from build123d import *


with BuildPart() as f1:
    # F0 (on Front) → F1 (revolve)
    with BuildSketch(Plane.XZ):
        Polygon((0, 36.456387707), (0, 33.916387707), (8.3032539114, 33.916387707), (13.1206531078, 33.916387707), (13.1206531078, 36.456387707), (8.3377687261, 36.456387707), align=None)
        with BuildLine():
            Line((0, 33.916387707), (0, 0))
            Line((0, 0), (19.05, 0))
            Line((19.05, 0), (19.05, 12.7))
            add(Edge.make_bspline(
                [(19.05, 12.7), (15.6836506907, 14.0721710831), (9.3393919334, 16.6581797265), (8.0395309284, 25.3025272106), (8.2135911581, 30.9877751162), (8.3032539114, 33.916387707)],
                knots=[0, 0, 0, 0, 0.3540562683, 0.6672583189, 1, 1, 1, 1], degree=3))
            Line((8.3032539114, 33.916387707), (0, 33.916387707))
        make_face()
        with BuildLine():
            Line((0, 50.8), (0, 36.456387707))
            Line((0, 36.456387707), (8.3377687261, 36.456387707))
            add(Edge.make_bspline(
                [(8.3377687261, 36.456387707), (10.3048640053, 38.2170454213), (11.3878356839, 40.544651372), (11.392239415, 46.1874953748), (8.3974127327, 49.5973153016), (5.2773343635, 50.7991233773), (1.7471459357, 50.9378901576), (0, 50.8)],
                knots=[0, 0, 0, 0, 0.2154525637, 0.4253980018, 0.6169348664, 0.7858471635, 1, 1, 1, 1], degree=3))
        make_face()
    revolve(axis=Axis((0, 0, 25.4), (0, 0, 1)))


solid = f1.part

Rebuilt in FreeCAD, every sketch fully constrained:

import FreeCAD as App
import Part
import Sketcher

doc = App.newDocument("Part")
body = doc.addObject("PartDesign::Body", "Body")

# Sketch on XZ plane
sketch1 = body.newObject("Sketcher::SketchObject", "Sketch")
sketch1.AttachmentSupport = (doc.getObject("XZ_Plane"), [""])
sketch1.MapMode = "FlatFace"
sketch1.addGeometry([
    Part.LineSegment(App.Vector(0, 0, 0), App.Vector(19.05, 0, 0)),  # 0
    Part.LineSegment(App.Vector(19.05, 0, 0), App.Vector(19.05, 12.7, 0)),  # 1
    Part.BSplineCurve([App.Vector(19.05, 12.7, 0), App.Vector(15.683651, 14.072171, 0), App.Vector(9.339392, 16.65818, 0), App.Vector(8.039531, 25.302527, 0), App.Vector(8.213591, 30.987775, 0), App.Vector(8.303254, 33.916388, 0)], [4, 1, 1, 4], [0, 0.354056268, 0.667258319, 1], False, 3, [1, 1, 1, 1, 1, 1], False),  # 2
    Part.LineSegment(App.Vector(8.303254, 33.916388, 0), App.Vector(13.120653, 33.916388, 0)),  # 3
    Part.LineSegment(App.Vector(13.120653, 33.916388, 0), App.Vector(13.120653, 36.456388, 0)),  # 4
    Part.LineSegment(App.Vector(13.120653, 36.456388, 0), App.Vector(8.337769, 36.456388, 0)),  # 5
    Part.BSplineCurve([App.Vector(8.337769, 36.456388, 0), App.Vector(10.304864, 38.217045, 0), App.Vector(11.387836, 40.544651, 0), App.Vector(11.392239, 46.187495, 0), App.Vector(8.397413, 49.597315, 0), App.Vector(5.277334, 50.799123, 0), App.Vector(1.747146, 50.93789, 0), App.Vector(0, 50.8, 0)], [4, 1, 1, 1, 1, 4], [0, 0.215452564, 0.425398002, 0.616934866, 0.785847163, 1], False, 3, [1, 1, 1, 1, 1, 1, 1, 1], False),  # 6
    Part.LineSegment(App.Vector(0, 50.8, 0), App.Vector(0, 0, 0)),  # 7
], False)
sketch1.addConstraint([
    Sketcher.Constraint("Block", 2),
    Sketcher.Constraint("Block", 6),
    Sketcher.Constraint("Coincident", 0, 2, 1, 1),
    Sketcher.Constraint("Coincident", 1, 2, 2, 1),
    Sketcher.Constraint("Coincident", 2, 2, 3, 1),
    Sketcher.Constraint("Coincident", 3, 2, 4, 1),
    Sketcher.Constraint("Coincident", 4, 2, 5, 1),
    Sketcher.Constraint("Coincident", 5, 2, 6, 1),
    Sketcher.Constraint("Coincident", 6, 2, 7, 1),
    Sketcher.Constraint("Coincident", 7, 2, 0, 1),
    Sketcher.Constraint("Horizontal", 0),
    Sketcher.Constraint("Vertical", 1),
    Sketcher.Constraint("Horizontal", 3),
    Sketcher.Constraint("Vertical", 4),
    Sketcher.Constraint("Horizontal", 5),
    Sketcher.Constraint("Vertical", 7),
    Sketcher.Constraint("PointOnObject", 0, 2, -1),
    Sketcher.Constraint("DistanceX", 3, 1, 3, 2, 4.817399),
])
revolution = body.newObject("PartDesign::Revolution", "Revolution")
revolution.Profile = sketch1
revolution.ReferenceAxis = (sketch1, ["V_Axis"])
revolution.Angle = 360

doc.recompute()
